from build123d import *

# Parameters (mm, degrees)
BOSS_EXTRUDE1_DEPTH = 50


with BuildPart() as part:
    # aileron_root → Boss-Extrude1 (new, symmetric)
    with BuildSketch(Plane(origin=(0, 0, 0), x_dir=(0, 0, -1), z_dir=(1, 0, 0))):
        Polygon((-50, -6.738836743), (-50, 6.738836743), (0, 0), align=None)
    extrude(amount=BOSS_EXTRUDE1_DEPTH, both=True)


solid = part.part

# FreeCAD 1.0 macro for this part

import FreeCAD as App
import Part
import Sketcher

V = App.Vector

doc = App.newDocument("Part")
body = doc.addObject("PartDesign::Body", "Body")

sketch1 = body.newObject("Sketcher::SketchObject", "Sketch")
sketch1.AttachmentSupport = (doc.getObject("YZ_Plane"), [""])
sketch1.MapMode = "FlatFace"
sketch1.addGeometry([
    Part.LineSegment(V(7, 50, 0), V(-7, 50, 0)),
    Part.LineSegment(V(-7, 50, 0), V(0, 0, 0)),
    Part.LineSegment(V(0, 0, 0), V(7, 50, 0)),
], False)
sketch1.addConstraint([
    Sketcher.Constraint("Coincident", 0, 2, 1, 1),
    Sketcher.Constraint("Coincident", 1, 2, 2, 1),
    Sketcher.Constraint("Coincident", 2, 2, 0, 1),
    Sketcher.Constraint("Horizontal", 0),
    Sketcher.Constraint("Coincident", 1, 2, -1, 1),
    Sketcher.Constraint("Equal", 1, 2),
    Sketcher.Constraint("DistanceY", -1, 1, 0, 2, 50.0),
    Sketcher.Constraint("DistanceX", 0, 2, 0, 1, 13.477673),
])
pad1 = body.newObject("PartDesign::Pad", "Pad")
pad1.Profile = sketch1
pad1.Length = 100
pad1.Midplane = True

doc.recompute()
